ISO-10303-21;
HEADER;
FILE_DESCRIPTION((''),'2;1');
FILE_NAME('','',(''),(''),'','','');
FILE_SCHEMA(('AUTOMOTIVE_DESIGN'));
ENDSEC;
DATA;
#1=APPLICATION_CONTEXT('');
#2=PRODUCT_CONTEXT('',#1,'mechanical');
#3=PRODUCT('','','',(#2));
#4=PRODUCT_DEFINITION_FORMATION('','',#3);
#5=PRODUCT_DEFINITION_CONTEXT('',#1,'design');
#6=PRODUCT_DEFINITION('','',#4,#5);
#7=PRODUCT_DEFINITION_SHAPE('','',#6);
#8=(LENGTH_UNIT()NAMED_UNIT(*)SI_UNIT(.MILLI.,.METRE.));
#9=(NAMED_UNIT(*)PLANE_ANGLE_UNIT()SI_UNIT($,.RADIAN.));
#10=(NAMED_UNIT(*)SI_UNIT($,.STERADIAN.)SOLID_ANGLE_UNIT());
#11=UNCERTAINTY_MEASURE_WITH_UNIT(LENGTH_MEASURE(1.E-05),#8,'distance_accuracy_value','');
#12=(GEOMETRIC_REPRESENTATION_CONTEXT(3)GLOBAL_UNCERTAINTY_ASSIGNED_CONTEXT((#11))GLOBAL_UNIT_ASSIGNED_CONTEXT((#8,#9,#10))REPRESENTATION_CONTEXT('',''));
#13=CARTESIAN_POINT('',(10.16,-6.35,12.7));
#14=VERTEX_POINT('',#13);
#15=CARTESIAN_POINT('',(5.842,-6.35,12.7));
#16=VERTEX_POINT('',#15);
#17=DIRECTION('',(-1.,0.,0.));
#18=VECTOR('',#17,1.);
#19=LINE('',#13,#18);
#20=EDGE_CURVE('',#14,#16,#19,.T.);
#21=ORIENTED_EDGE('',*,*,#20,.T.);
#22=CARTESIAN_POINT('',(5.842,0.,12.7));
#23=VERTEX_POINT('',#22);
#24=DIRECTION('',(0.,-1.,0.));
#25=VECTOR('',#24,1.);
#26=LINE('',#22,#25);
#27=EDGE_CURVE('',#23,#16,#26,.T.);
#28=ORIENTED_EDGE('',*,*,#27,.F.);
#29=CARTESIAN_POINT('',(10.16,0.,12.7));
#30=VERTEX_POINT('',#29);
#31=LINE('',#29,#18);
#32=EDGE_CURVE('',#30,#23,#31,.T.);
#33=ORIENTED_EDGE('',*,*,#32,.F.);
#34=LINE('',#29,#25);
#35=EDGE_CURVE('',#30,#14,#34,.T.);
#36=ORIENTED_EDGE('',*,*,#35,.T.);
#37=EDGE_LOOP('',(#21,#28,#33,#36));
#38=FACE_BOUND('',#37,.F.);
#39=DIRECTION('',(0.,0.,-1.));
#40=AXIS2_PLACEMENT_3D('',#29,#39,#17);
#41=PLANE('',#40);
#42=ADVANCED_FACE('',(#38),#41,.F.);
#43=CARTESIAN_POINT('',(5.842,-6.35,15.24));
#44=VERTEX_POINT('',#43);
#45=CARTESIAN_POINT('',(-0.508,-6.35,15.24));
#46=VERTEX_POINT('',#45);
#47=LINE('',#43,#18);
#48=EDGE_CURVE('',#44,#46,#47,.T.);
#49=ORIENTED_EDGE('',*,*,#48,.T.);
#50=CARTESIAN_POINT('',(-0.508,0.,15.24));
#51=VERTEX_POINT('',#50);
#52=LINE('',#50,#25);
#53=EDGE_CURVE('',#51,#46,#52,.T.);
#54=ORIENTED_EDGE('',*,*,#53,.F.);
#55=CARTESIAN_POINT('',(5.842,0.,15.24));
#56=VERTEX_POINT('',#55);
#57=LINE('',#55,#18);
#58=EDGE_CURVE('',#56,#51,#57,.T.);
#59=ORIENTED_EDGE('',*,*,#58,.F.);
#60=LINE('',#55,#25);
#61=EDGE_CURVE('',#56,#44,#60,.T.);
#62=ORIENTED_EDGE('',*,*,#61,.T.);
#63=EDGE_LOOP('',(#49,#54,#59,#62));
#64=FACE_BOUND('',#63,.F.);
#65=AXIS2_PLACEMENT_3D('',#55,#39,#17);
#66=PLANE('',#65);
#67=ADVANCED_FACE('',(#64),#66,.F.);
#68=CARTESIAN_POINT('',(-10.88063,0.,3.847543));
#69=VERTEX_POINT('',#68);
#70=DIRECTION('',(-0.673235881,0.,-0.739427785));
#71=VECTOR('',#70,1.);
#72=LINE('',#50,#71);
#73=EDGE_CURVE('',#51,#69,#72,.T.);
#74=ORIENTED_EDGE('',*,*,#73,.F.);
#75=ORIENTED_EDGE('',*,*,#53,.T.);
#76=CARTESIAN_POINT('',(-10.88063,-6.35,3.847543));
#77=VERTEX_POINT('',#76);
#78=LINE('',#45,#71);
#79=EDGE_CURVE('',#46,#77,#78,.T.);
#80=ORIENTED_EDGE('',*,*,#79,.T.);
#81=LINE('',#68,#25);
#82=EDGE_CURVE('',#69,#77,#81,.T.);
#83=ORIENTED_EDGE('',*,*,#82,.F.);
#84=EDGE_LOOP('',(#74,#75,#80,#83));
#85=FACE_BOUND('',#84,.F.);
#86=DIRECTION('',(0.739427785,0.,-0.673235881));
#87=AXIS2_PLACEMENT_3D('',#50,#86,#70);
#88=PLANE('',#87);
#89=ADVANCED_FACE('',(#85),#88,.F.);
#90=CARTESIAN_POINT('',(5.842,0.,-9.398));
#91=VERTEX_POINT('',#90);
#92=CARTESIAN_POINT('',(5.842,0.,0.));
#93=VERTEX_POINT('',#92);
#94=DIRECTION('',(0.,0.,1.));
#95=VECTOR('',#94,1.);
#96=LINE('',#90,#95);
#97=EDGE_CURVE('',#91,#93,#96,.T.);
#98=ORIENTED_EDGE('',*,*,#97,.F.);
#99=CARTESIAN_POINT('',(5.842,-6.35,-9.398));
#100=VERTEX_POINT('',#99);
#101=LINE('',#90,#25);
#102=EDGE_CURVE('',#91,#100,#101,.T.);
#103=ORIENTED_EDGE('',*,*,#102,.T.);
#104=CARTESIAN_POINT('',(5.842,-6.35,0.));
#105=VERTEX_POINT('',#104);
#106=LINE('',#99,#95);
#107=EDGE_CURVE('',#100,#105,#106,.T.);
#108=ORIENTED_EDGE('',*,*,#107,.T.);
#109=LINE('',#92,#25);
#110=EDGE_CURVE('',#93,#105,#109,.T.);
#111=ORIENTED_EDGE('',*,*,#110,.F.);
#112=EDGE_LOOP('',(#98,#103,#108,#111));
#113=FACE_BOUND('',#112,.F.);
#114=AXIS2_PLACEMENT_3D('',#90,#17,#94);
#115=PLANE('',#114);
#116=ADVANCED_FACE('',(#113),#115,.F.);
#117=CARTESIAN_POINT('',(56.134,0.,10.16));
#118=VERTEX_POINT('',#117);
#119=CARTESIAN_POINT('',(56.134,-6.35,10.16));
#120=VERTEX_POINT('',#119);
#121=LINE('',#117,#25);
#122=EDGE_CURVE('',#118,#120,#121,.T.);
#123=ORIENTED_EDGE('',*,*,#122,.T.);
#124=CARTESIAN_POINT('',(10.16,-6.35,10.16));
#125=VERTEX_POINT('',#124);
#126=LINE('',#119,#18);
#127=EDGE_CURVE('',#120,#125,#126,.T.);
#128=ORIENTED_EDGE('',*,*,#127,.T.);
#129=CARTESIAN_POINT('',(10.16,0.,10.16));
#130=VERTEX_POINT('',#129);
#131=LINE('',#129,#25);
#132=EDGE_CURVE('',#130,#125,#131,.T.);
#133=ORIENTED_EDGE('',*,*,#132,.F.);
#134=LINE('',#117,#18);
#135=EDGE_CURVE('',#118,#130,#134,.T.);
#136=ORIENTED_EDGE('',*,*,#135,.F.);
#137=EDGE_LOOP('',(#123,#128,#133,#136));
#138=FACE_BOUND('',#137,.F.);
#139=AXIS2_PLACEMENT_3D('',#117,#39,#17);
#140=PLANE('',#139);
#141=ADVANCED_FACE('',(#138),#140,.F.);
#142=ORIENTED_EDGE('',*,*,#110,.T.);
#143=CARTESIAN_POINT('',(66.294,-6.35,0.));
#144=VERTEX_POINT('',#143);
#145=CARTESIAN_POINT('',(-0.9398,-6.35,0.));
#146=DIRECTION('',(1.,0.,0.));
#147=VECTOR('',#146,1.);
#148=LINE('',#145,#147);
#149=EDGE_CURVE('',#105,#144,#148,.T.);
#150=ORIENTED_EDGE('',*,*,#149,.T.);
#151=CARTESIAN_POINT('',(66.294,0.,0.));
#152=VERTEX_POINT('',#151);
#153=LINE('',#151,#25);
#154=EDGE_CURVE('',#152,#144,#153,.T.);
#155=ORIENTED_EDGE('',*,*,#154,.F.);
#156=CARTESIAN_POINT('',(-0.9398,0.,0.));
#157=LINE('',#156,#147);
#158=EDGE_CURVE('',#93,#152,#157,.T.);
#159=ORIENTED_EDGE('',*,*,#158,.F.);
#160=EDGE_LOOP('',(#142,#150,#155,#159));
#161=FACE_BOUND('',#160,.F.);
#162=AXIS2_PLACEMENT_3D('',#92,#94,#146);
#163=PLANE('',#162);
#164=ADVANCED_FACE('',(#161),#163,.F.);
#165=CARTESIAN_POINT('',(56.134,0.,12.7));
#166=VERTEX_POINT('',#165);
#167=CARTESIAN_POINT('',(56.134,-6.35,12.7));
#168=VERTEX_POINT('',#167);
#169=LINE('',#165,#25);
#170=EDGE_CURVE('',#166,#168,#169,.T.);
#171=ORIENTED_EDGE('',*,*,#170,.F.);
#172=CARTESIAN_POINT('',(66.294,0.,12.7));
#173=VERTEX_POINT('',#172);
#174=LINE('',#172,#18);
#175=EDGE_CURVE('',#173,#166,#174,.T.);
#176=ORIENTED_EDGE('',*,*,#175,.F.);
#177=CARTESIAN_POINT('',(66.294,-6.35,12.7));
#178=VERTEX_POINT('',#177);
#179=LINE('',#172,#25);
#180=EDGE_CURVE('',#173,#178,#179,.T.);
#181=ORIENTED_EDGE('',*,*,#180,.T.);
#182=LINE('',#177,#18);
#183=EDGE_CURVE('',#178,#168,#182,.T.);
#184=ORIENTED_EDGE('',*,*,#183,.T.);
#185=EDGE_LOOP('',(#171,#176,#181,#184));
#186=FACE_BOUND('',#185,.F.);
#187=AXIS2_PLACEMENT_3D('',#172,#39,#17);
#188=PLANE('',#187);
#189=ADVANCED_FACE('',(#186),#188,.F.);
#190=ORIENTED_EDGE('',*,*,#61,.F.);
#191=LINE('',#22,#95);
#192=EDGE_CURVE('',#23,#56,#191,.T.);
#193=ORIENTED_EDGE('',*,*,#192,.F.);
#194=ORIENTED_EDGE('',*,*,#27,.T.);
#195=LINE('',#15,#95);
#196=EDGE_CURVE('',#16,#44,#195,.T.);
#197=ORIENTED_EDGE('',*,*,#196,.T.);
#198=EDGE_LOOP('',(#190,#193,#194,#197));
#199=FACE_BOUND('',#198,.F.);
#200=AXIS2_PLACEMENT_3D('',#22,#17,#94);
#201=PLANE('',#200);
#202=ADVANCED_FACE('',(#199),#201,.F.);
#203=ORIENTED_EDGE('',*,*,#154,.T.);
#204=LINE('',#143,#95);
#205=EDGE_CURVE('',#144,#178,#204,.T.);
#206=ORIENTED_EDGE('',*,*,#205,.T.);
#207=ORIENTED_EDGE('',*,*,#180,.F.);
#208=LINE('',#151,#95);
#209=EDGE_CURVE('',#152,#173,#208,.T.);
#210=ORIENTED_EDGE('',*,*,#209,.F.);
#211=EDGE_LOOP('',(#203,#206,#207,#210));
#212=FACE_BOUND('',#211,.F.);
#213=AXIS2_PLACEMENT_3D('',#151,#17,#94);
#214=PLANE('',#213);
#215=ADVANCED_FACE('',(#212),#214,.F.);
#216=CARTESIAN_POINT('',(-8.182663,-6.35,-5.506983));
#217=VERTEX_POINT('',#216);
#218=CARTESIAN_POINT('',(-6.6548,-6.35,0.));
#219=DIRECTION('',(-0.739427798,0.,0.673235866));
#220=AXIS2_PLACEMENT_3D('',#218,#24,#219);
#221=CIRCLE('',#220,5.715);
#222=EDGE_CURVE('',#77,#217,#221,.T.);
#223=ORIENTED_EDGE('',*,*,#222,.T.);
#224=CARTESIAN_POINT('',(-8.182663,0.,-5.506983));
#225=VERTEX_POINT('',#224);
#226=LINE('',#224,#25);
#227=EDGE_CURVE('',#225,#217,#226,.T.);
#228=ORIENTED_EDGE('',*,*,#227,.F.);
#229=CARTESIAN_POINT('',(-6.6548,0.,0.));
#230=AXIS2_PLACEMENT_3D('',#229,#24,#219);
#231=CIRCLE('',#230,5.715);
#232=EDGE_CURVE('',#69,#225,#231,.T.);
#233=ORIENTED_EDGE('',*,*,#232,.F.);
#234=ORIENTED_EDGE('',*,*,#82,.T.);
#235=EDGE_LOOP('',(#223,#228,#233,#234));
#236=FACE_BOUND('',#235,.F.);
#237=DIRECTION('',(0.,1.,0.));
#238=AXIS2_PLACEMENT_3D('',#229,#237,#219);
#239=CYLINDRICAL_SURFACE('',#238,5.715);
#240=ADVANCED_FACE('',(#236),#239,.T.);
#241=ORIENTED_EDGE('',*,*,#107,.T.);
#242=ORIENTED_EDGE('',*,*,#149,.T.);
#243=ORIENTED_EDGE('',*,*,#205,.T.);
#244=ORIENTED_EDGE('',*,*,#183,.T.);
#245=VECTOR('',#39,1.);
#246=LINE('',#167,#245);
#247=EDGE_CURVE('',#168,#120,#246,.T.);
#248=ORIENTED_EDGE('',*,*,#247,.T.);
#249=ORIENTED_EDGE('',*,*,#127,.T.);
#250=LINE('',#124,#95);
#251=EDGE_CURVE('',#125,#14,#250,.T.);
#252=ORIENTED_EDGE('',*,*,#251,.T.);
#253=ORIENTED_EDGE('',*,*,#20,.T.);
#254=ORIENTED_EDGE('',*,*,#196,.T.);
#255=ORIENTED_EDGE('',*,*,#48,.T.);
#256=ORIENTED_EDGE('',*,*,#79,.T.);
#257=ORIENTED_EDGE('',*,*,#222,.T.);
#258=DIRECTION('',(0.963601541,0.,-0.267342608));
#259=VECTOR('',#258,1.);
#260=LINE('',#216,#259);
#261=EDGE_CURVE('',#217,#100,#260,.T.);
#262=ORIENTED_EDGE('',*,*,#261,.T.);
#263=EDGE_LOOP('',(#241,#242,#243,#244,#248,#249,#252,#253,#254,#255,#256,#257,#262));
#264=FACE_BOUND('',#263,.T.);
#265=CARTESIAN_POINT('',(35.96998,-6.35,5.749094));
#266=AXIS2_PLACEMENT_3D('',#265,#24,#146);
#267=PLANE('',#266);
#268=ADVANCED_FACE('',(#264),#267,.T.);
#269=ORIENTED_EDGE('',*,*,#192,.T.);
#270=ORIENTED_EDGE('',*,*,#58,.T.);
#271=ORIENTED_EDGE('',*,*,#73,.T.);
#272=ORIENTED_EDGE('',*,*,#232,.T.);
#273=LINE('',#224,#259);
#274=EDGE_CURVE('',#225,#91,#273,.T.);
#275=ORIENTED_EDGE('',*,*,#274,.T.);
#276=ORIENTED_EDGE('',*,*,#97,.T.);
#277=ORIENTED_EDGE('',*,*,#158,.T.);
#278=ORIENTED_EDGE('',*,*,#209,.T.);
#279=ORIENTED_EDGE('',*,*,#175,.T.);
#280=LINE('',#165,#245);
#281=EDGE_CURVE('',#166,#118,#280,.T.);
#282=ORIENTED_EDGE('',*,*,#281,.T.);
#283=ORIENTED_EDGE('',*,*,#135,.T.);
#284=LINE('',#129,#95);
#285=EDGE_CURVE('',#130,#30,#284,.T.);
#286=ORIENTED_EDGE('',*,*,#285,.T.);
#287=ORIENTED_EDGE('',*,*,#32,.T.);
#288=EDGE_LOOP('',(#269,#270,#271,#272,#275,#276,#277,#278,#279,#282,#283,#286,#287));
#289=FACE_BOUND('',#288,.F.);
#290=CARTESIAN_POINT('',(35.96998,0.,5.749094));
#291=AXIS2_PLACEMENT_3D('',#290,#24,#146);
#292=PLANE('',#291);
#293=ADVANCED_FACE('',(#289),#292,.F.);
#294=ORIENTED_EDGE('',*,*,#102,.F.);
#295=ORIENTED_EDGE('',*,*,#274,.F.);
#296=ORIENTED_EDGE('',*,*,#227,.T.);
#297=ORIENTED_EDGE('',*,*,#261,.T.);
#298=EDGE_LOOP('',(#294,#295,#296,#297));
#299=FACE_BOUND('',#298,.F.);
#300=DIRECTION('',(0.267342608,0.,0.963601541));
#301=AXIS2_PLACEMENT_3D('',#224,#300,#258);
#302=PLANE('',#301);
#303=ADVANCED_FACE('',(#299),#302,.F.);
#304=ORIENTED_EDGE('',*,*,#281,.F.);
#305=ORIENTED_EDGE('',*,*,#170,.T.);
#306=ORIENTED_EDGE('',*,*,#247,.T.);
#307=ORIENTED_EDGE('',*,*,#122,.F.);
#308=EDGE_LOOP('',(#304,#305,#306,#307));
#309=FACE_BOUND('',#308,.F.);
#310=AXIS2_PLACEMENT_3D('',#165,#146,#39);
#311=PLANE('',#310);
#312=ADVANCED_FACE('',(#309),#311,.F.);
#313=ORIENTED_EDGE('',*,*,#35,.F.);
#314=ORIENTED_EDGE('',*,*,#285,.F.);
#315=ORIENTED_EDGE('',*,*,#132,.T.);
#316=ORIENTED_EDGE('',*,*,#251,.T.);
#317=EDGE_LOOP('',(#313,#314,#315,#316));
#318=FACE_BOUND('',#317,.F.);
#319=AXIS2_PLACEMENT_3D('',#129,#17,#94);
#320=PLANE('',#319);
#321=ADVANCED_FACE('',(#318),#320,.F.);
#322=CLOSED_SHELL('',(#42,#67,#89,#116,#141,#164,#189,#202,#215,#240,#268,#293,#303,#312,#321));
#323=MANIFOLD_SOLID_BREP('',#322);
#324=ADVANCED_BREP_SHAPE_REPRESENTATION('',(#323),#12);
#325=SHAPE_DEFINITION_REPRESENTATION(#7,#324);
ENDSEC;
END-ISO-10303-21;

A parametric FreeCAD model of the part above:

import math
import FreeCAD as App
import Part
import Sketcher
Q = App.Units.Quantity

doc = App.newDocument("Part")
body = doc.addObject("PartDesign::Body", "Body")

# Sketch on XZ plane
sketch1 = body.newObject("Sketcher::SketchObject", "Sketch")
sketch1.AttachmentSupport = (doc.getObject("XZ_Plane"), [""])
sketch1.MapMode = "FlatFace"
sketch1.addGeometry([
    Part.LineSegment(App.Vector(66.294, 0, 0), App.Vector(66.294, 12.7, 0)),  # 0
    Part.LineSegment(App.Vector(66.294, 12.7, 0), App.Vector(56.134, 12.7, 0)),  # 1
    Part.LineSegment(App.Vector(56.134, 12.7, 0), App.Vector(56.134, 10.16, 0)),  # 2
    Part.LineSegment(App.Vector(56.134, 10.16, 0), App.Vector(10.16, 10.16, 0)),  # 3
    Part.LineSegment(App.Vector(10.16, 10.16, 0), App.Vector(10.16, 12.7, 0)),  # 4
    Part.LineSegment(App.Vector(10.16, 12.7, 0), App.Vector(5.842, 12.7, 0)),  # 5
    Part.LineSegment(App.Vector(5.842, 12.7, 0), App.Vector(5.842, 15.24, 0)),  # 6
    Part.LineSegment(App.Vector(5.842, 15.24, 0), App.Vector(-0.508, 15.24, 0)),  # 7
    Part.LineSegment(App.Vector(-0.508, 15.24, 0), App.Vector(-10.88063, 3.847543, 0)),  # 8
    Part.ArcOfCircle(Part.Circle(App.Vector(-6.6548, 0, 0), App.Vector(0, 0, 1), 5.715), math.radians(137.682696), math.radians(254.493803)),  # 9
    Part.LineSegment(App.Vector(-8.182663, -5.506983, 0), App.Vector(5.842, -9.398, 0)),  # 10
    Part.LineSegment(App.Vector(5.842, -9.398, 0), App.Vector(5.842, 0, 0)),  # 11
    Part.LineSegment(App.Vector(5.842, 0, 0), App.Vector(66.294, 0, 0)),  # 12
], False)
sketch1.addConstraint([
    Sketcher.Constraint("Coincident", 0, 2, 1, 1),
    Sketcher.Constraint("Coincident", 1, 2, 2, 1),
    Sketcher.Constraint("Coincident", 2, 2, 3, 1),
    Sketcher.Constraint("Coincident", 3, 2, 4, 1),
    Sketcher.Constraint("Coincident", 4, 2, 5, 1),
    Sketcher.Constraint("Coincident", 5, 2, 6, 1),
    Sketcher.Constraint("Coincident", 6, 2, 7, 1),
    Sketcher.Constraint("Coincident", 7, 2, 8, 1),
    Sketcher.Constraint("Tangent", 8, 2, 9, 1),
    Sketcher.Constraint("Tangent", 9, 2, 10, 1),
    Sketcher.Constraint("Coincident", 10, 2, 11, 1),
    Sketcher.Constraint("Coincident", 11, 2, 12, 1),
    Sketcher.Constraint("Coincident", 12, 2, 0, 1),
    Sketcher.Constraint("Vertical", 0),
    Sketcher.Constraint("Horizontal", 1),
    Sketcher.Constraint("Vertical", 2),
    Sketcher.Constraint("Horizontal", 3),
    Sketcher.Constraint("Vertical", 4),
    Sketcher.Constraint("Horizontal", 5),
    Sketcher.Constraint("Vertical", 6),
    Sketcher.Constraint("Horizontal", 7),
    Sketcher.Constraint("Vertical", 11),
    Sketcher.Constraint("Horizontal", 12),
    Sketcher.Constraint("PointOnObject", 9, 3, -1),
    Sketcher.Constraint("PointOnObject", 11, 2, -1),
    Sketcher.Constraint("Horizontal", 1, 2, 4, 2),
    Sketcher.Constraint("Vertical", 6, 2, 10, 2),
    Sketcher.Constraint("Equal", 4, 6),
    Sketcher.Constraint("DistanceX", 1, 2, 1, 1, Q("0.4 in")),
    Sketcher.Constraint("DistanceY", 0, 1, 0, 2, Q("0.5 in")),
    Sketcher.Constraint("DistanceY", 2, 2, 2, 1, Q("0.1 in")),
    Sketcher.Constraint("Radius", 9, Q("0.225 in")),
    Sketcher.Constraint("DistanceX", 3, 2, 3, 1, Q("1.81 in")),
    Sketcher.Constraint("DistanceX", 5, 2, 5, 1, Q("0.17 in")),
    Sketcher.Constraint("DistanceX", 7, 2, 7, 1, Q("0.25 in")),
    Sketcher.Constraint("DistanceY", 11, 1, 11, 2, Q("0.37 in")),
    Sketcher.Constraint("DistanceX", -1, 1, 3, 2, Q("0.4 in")),
    Sketcher.Constraint("DistanceX", 9, 3, -1, 1, Q("0.262 in")),
])
pad1 = body.newObject("PartDesign::Pad", "Pad")
pad1.Profile = sketch1
pad1.Length = Q("0.25 in")

doc.recompute()
